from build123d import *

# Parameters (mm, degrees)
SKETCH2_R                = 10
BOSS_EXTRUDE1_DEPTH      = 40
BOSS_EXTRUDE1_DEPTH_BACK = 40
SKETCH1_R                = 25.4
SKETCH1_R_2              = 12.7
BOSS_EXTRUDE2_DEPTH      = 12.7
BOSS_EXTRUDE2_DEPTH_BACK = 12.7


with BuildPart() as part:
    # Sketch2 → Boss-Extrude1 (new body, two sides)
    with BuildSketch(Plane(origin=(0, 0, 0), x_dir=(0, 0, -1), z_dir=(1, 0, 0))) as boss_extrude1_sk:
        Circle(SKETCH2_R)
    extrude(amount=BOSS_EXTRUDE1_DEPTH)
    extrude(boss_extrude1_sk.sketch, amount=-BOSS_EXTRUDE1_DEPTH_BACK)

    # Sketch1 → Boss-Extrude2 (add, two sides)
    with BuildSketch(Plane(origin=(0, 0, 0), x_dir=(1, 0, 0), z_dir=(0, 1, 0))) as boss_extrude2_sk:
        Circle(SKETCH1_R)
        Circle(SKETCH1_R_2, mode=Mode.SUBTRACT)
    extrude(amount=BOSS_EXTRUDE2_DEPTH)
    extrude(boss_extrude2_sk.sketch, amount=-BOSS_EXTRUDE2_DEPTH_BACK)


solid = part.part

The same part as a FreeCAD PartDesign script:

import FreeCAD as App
import Part
import Sketcher

V = App.Vector
Q = App.Units.Quantity

doc = App.newDocument("Part")
body = doc.addObject("PartDesign::Body", "Body")

# Sketch on YZ plane
sketch1 = body.newObject("Sketcher::SketchObject", "Sketch")
sketch1.AttachmentSupport = (doc.getObject("YZ_Plane"), [""])
sketch1.MapMode = "FlatFace"
sketch1.addGeometry(Part.Circle(V(0, 0, 0), V(0, 0, 1), 10), False)
sketch1.addConstraint([
    Sketcher.Constraint("Coincident", 0, 3, -1, 1),
    Sketcher.Constraint("Diameter", 0, Q("20 mm")),
])
pad1 = body.newObject("PartDesign::Pad", "Pad")
pad1.Profile = sketch1
pad1.Type = "TwoLengths"
pad1.Length = 40
pad1.Length2 = 40

# Sketch on XZ plane
sketch2 = body.newObject("Sketcher::SketchObject", "Sketch001")
sketch2.AttachmentSupport = (doc.getObject("XZ_Plane"), [""])
sketch2.MapMode = "FlatFace"
sketch2.addGeometry([
    Part.Circle(V(0, 0, 0), V(0, 0, 1), 25.4),
    Part.Circle(V(0, 0, 0), V(0, 0, 1), 12.7),
], False)
sketch2.addConstraint([
    Sketcher.Constraint("Coincident", 0, 3, -1, 1),
    Sketcher.Constraint("Coincident", 1, 3, -1, 1),
    Sketcher.Constraint("Diameter", 0, Q("2 in")),
    Sketcher.Constraint("Diameter", 1, Q("1 in")),
])
pad2 = body.newObject("PartDesign::Pad", "Pad001")
pad2.Profile = sketch2
pad2.Type = "TwoLengths"
pad2.Length = Q("0.5 in")
pad2.Length2 = Q("0.5 in")
pad2.Reversed = True

doc.recompute()
